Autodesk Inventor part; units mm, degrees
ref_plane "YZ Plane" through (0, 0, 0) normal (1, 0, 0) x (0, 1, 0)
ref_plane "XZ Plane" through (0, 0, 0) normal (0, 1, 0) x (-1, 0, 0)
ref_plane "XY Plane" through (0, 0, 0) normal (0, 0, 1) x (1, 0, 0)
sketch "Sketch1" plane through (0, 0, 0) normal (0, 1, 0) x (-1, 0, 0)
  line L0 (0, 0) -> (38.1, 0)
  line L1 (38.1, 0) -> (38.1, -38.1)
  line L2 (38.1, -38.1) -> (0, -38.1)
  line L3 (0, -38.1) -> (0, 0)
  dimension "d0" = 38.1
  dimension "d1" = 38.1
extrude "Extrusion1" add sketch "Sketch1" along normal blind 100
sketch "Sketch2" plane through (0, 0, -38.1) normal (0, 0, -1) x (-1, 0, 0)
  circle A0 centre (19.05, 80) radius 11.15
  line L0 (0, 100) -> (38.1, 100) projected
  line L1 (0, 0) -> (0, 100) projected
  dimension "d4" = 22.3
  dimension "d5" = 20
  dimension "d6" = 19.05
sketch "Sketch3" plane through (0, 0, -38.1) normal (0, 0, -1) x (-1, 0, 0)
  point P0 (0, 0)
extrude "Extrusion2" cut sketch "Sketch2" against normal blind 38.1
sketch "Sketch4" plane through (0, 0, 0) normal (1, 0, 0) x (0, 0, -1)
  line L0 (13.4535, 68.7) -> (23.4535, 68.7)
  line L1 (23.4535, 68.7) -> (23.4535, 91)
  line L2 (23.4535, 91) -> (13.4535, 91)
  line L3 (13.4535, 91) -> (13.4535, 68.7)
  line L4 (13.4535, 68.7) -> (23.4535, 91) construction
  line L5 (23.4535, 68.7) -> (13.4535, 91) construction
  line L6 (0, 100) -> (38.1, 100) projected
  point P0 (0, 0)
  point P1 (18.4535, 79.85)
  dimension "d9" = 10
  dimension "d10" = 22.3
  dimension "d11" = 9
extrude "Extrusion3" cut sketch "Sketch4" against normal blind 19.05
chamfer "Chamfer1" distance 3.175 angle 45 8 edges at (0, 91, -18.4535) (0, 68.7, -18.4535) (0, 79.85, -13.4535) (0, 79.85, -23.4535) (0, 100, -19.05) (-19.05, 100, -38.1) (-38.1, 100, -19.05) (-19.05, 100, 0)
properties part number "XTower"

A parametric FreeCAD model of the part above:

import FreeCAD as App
import Part
import Sketcher

V = App.Vector
Q = App.Units.Quantity


def edges_at(feature, points):
    """Names of the edges that pass closest to the given points."""
    edges = feature.Shape.Edges
    near = lambda p: min(range(len(edges)), key=lambda i: edges[i].distToShape(Part.Vertex(*p))[0])
    return sorted({f"Edge{near(p) + 1}" for p in points})

doc = App.newDocument("Part")
body = doc.addObject("PartDesign::Body", "Body")

# Sketch on XZ plane
sketch1 = body.newObject("Sketcher::SketchObject", "Sketch")
sketch1.AttachmentSupport = (doc.getObject("XZ_Plane"), [""])
sketch1.MapMode = "FlatFace"
sketch1.addGeometry([
    Part.LineSegment(V(-38, 0, 0), V(0, 0, 0)),
    Part.LineSegment(V(0, 0, 0), V(0, -38, 0)),
    Part.LineSegment(V(0, -38, 0), V(-38, -38, 0)),
    Part.LineSegment(V(-38, -38, 0), V(-38, 0, 0)),
], False)
sketch1.addConstraint([
    Sketcher.Constraint("Coincident", 0, 2, 1, 1),
    Sketcher.Constraint("Coincident", 1, 2, 2, 1),
    Sketcher.Constraint("Coincident", 2, 2, 3, 1),
    Sketcher.Constraint("Coincident", 3, 2, 0, 1),
    Sketcher.Constraint("Horizontal", 0),
    Sketcher.Constraint("Vertical", 1),
    Sketcher.Constraint("Horizontal", 2),
    Sketcher.Constraint("Vertical", 3),
    Sketcher.Constraint("Coincident", 0, 2, -1, 1),
    Sketcher.Constraint("Equal", 2, 1),
    Sketcher.Constraint("DistanceX", 0, 1, 0, 2, Q("1.5 in")),
])
pad1 = body.newObject("PartDesign::Pad", "Pad")
pad1.Profile = sketch1
pad1.Length = Q("3.9370079 in")
pad1.Reversed = True

# Sketch on XY plane
sketch2 = body.newObject("Sketcher::SketchObject", "Sketch001")
sketch2.AttachmentSupport = (doc.getObject("XY_Plane"), [""])
sketch2.MapMode = "FlatFace"
sketch2.AttachmentOffset = App.Placement(V(0, 0, -1.5 * 25.4), App.Rotation())
sketch2.addGeometry(Part.Circle(V(-19, 80, 0), V(0, 0, 1), 11), False)
sketch2.addConstraint([
    Sketcher.Constraint("Diameter", 0, 22.3),
    Sketcher.Constraint("DistanceX", 0, 3, -1, 1, Q("0.75 in")),
    Sketcher.Constraint("DistanceY", -1, 1, 0, 3, Q("3.1496 in")),
])
pocket1 = body.newObject("PartDesign::Pocket", "Pocket")
pocket1.Profile = sketch2
pocket1.Length = Q("1.5 in")
pocket1.Reversed = True

# Sketch on YZ plane
sketch3 = body.newObject("Sketcher::SketchObject", "Sketch002")
sketch3.AttachmentSupport = (doc.getObject("YZ_Plane"), [""])
sketch3.MapMode = "FlatFace"
sketch3.addGeometry([
    Part.LineSegment(V(91, -13, 0), V(69, -13, 0)),
    Part.LineSegment(V(69, -13, 0), V(69, -23, 0)),
    Part.LineSegment(V(69, -23, 0), V(91, -23, 0)),
    Part.LineSegment(V(91, -23, 0), V(91, -13, 0)),
], False)
sketch3.addConstraint([
    Sketcher.Constraint("Coincident", 0, 2, 1, 1),
    Sketcher.Constraint("Coincident", 1, 2, 2, 1),
    Sketcher.Constraint("Coincident", 2, 2, 3, 1),
    Sketcher.Constraint("Coincident", 3, 2, 0, 1),
    Sketcher.Constraint("Horizontal", 0),
    Sketcher.Constraint("Vertical", 1),
    Sketcher.Constraint("Horizontal", 2),
    Sketcher.Constraint("Vertical", 3),
    Sketcher.Constraint("DistanceY", 1, 2, 1, 1, Q("0.3937 in")),
    Sketcher.Constraint("DistanceX", 0, 2, 0, 1, 22.3),
    Sketcher.Constraint("DistanceX", -1, 1, 0, 2, 68.7),
    Sketcher.Constraint("DistanceY", 0, 2, -1, 1, 13.4535),
])
pocket2 = body.newObject("PartDesign::Pocket", "Pocket001")
pocket2.Profile = sketch3
pocket2.Length = Q("0.75 in")
doc.recompute()

chamfer = body.newObject("PartDesign::Chamfer", "Chamfer")
chamfer.Base = (pocket2, edges_at(pocket2, [
    (0, 91, -18.453),
    (0, 68.7, -18.453),
    (0, 79.85, -13.454),
    (0, 79.85, -23.453),
    (0, 100, -19.05),
    (-19.05, 100, -38.1),
    (-38.1, 100, -19.05),
    (-19.05, 100, 0),
]))
chamfer.Size = Q("0.125 in")

doc.recompute()
